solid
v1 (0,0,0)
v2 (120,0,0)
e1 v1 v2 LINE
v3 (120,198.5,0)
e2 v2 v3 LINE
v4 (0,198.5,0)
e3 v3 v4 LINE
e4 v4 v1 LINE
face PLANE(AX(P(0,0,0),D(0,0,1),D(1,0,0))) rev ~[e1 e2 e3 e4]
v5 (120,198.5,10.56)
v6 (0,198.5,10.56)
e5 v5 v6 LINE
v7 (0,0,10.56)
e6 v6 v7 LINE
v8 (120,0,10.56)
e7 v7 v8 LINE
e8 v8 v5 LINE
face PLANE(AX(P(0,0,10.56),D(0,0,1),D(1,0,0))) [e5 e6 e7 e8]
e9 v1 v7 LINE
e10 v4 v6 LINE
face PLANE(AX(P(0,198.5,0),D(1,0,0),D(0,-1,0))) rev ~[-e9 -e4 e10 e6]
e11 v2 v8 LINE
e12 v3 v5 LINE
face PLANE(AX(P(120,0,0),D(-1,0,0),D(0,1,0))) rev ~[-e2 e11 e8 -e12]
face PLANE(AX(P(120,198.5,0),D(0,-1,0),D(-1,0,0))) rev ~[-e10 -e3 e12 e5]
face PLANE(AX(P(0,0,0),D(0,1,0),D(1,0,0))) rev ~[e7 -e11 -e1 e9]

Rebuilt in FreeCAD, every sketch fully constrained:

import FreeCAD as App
import Part
import Sketcher
Q = App.Units.Quantity

doc = App.newDocument("Part")
body = doc.addObject("PartDesign::Body", "Body")

# Sketch on XY plane
sketch1 = doc.addObject("Sketcher::SketchObject", "Sketch")
body.addObject(sketch1)
sketch1.AttachmentSupport = (doc.XY_Plane, [""])
sketch1.MapMode = "FlatFace"
sketch1.addGeometry([
    Part.LineSegment(App.Vector(0, 198.5, 0), App.Vector(0, 0, 0)),
    Part.LineSegment(App.Vector(0, 0, 0), App.Vector(120, 0, 0)),
    Part.LineSegment(App.Vector(120, 0, 0), App.Vector(120, 198.5, 0)),
    Part.LineSegment(App.Vector(120, 198.5, 0), App.Vector(0, 198.5, 0)),
], False)
sketch1.addConstraint([
    Sketcher.Constraint("Coincident", 0, 2, 1, 1),
    Sketcher.Constraint("Coincident", 1, 2, 2, 1),
    Sketcher.Constraint("Coincident", 2, 2, 3, 1),
    Sketcher.Constraint("Coincident", 3, 2, 0, 1),
    Sketcher.Constraint("Vertical", 0),
    Sketcher.Constraint("Horizontal", 1),
    Sketcher.Constraint("Vertical", 2),
    Sketcher.Constraint("Horizontal", 3),
    Sketcher.Constraint("Coincident", 0, 2, -1, 1),
    Sketcher.Constraint("DistanceX", 1, 1, 1, 2, Q("120 mm")),
    Sketcher.Constraint("DistanceY", 0, 2, 0, 1, Q("198.5 mm")),
])
pad1 = doc.addObject("PartDesign::Pad", "Pad")
body.addObject(pad1)
pad1.Profile = sketch1
pad1.Length = 10.56

doc.recompute()
